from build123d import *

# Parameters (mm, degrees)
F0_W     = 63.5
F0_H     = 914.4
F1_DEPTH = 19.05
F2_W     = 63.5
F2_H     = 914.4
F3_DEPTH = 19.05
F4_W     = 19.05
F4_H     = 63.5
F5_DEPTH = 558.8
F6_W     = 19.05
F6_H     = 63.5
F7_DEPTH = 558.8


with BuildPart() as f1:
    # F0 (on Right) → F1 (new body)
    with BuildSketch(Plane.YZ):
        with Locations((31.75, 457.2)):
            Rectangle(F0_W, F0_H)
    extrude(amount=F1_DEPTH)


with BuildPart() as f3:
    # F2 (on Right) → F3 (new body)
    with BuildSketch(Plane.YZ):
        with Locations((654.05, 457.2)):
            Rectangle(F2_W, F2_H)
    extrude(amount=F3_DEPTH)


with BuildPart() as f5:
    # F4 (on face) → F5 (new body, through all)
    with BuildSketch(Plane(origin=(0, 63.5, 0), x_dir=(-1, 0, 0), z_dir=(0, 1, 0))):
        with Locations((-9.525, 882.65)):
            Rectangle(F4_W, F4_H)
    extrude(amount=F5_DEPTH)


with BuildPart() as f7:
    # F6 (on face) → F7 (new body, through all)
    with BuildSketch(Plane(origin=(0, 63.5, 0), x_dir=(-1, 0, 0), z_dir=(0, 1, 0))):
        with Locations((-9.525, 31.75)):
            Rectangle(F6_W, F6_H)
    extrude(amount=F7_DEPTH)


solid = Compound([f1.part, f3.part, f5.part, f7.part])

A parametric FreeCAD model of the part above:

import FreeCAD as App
import Part
import Sketcher
Q = App.Units.Quantity

doc = App.newDocument("Part")
body = doc.addObject("PartDesign::Body", "Body")

# Sketch on YZ plane
sketch1 = body.newObject("Sketcher::SketchObject", "Sketch")
sketch1.AttachmentSupport = (doc.getObject("YZ_Plane"), [""])
sketch1.MapMode = "FlatFace"
sketch1.addGeometry(Part.LineSegment(App.Vector(0, 914, 0), App.Vector(0, 0, 0)), False)
sketch1.addGeometry(Part.LineSegment(App.Vector(0, 0, 0), App.Vector(64, 0, 0)), False)
sketch1.addGeometry(Part.LineSegment(App.Vector(64, 0, 0), App.Vector(64, 914, 0)), False)
sketch1.addGeometry(Part.LineSegment(App.Vector(64, 914, 0), App.Vector(0, 914, 0)), False)
sketch1.addConstraint(Sketcher.Constraint("Coincident", 0, 2, 1, 1))
sketch1.addConstraint(Sketcher.Constraint("Coincident", 1, 2, 2, 1))
sketch1.addConstraint(Sketcher.Constraint("Coincident", 2, 2, 3, 1))
sketch1.addConstraint(Sketcher.Constraint("Coincident", 3, 2, 0, 1))
sketch1.addConstraint(Sketcher.Constraint("Vertical", 0))
sketch1.addConstraint(Sketcher.Constraint("Horizontal", 1))
sketch1.addConstraint(Sketcher.Constraint("Vertical", 2))
sketch1.addConstraint(Sketcher.Constraint("Horizontal", 3))
sketch1.addConstraint(Sketcher.Constraint("Coincident", 0, 2, -1, 1))
sketch1.addConstraint(Sketcher.Constraint("DistanceY", 0, 2, 0, 1, Q("36 in")))
sketch1.addConstraint(Sketcher.Constraint("DistanceX", 1, 1, 1, 2, Q("2.5 in")))
pad1 = body.newObject("PartDesign::Pad", "Pad")
pad1.Profile = sketch1
pad1.Length = Q("0.75 in")
body2 = doc.addObject("PartDesign::Body", "Body001")

# Sketch on YZ plane
sketch2 = body2.newObject("Sketcher::SketchObject", "Sketch001")
sketch2.AttachmentSupport = (doc.getObject("YZ_Plane001"), [""])
sketch2.MapMode = "FlatFace"
sketch2.addGeometry(Part.LineSegment(App.Vector(622, 914, 0), App.Vector(622, 0, 0)), False)
sketch2.addGeometry(Part.LineSegment(App.Vector(622, 0, 0), App.Vector(686, 0, 0)), False)
sketch2.addGeometry(Part.LineSegment(App.Vector(686, 0, 0), App.Vector(686, 914, 0)), False)
sketch2.addGeometry(Part.LineSegment(App.Vector(686, 914, 0), App.Vector(622, 914, 0)), False)
sketch2.addConstraint(Sketcher.Constraint("Coincident", 0, 2, 1, 1))
sketch2.addConstraint(Sketcher.Constraint("Coincident", 1, 2, 2, 1))
sketch2.addConstraint(Sketcher.Constraint("Coincident", 2, 2, 3, 1))
sketch2.addConstraint(Sketcher.Constraint("Coincident", 3, 2, 0, 1))
sketch2.addConstraint(Sketcher.Constraint("Vertical", 0))
sketch2.addConstraint(Sketcher.Constraint("Horizontal", 1))
sketch2.addConstraint(Sketcher.Constraint("Vertical", 2))
sketch2.addConstraint(Sketcher.Constraint("Horizontal", 3))
sketch2.addConstraint(Sketcher.Constraint("PointOnObject", 0, 2, -1))
sketch2.addConstraint(Sketcher.Constraint("DistanceY", 0, 2, 0, 1, Q("36 in")))
sketch2.addConstraint(Sketcher.Constraint("DistanceX", 1, 1, 1, 2, Q("2.5 in")))
sketch2.addConstraint(Sketcher.Constraint("DistanceX", -1, 1, 1, 2, Q("27 in")))
pad2 = body2.newObject("PartDesign::Pad", "Pad001")
pad2.Profile = sketch2
pad2.Length = Q("0.75 in")
body3 = doc.addObject("PartDesign::Body", "Body002")

# Sketch on XZ plane
sketch3 = body3.newObject("Sketcher::SketchObject", "Sketch002")
sketch3.AttachmentSupport = (doc.getObject("XZ_Plane002"), [""])
sketch3.MapMode = "FlatFace"
sketch3.AttachmentOffset = App.Placement(App.Vector(0, 0, -2.5 * 25.4), App.Rotation())
sketch3.addGeometry(Part.LineSegment(App.Vector(19, 914, 0), App.Vector(19, 851, 0)), False)
sketch3.addGeometry(Part.LineSegment(App.Vector(19, 851, 0), App.Vector(0, 851, 0)), False)
sketch3.addGeometry(Part.LineSegment(App.Vector(0, 851, 0), App.Vector(0, 914, 0)), False)
sketch3.addGeometry(Part.LineSegment(App.Vector(0, 914, 0), App.Vector(19, 914, 0)), False)
sketch3.addConstraint(Sketcher.Constraint("Coincident", 0, 2, 1, 1))
sketch3.addConstraint(Sketcher.Constraint("Coincident", 1, 2, 2, 1))
sketch3.addConstraint(Sketcher.Constraint("Coincident", 2, 2, 3, 1))
sketch3.addConstraint(Sketcher.Constraint("Coincident", 3, 2, 0, 1))
sketch3.addConstraint(Sketcher.Constraint("Vertical", 0))
sketch3.addConstraint(Sketcher.Constraint("Horizontal", 1))
sketch3.addConstraint(Sketcher.Constraint("Vertical", 2))
sketch3.addConstraint(Sketcher.Constraint("Horizontal", 3))
sketch3.addConstraint(Sketcher.Constraint("PointOnObject", 1, 2, -2))
sketch3.addConstraint(Sketcher.Constraint("DistanceY", 0, 2, 0, 1, Q("2.5 in")))
sketch3.addConstraint(Sketcher.Constraint("DistanceY", -1, 1, 2, 2, Q("36 in")))
sketch3.addConstraint(Sketcher.Constraint("DistanceX", 1, 2, 1, 1, Q("0.75 in")))
pad3 = body3.newObject("PartDesign::Pad", "Pad002")
pad3.Profile = sketch3
pad3.Length = Q("22 in")
pad3.Reversed = True
body4 = doc.addObject("PartDesign::Body", "Body003")

# Sketch on XZ plane
sketch4 = body4.newObject("Sketcher::SketchObject", "Sketch003")
sketch4.AttachmentSupport = (doc.getObject("XZ_Plane003"), [""])
sketch4.MapMode = "FlatFace"
sketch4.AttachmentOffset = App.Placement(App.Vector(0, 0, -2.5 * 25.4), App.Rotation())
sketch4.addGeometry(Part.LineSegment(App.Vector(19, 64, 0), App.Vector(19, 0, 0)), False)
sketch4.addGeometry(Part.LineSegment(App.Vector(19, 0, 0), App.Vector(0, 0, 0)), False)
sketch4.addGeometry(Part.LineSegment(App.Vector(0, 0, 0), App.Vector(0, 64, 0)), False)
sketch4.addGeometry(Part.LineSegment(App.Vector(0, 64, 0), App.Vector(19, 64, 0)), False)
sketch4.addConstraint(Sketcher.Constraint("Coincident", 0, 2, 1, 1))
sketch4.addConstraint(Sketcher.Constraint("Coincident", 1, 2, 2, 1))
sketch4.addConstraint(Sketcher.Constraint("Coincident", 2, 2, 3, 1))
sketch4.addConstraint(Sketcher.Constraint("Coincident", 3, 2, 0, 1))
sketch4.addConstraint(Sketcher.Constraint("Vertical", 0))
sketch4.addConstraint(Sketcher.Constraint("Horizontal", 1))
sketch4.addConstraint(Sketcher.Constraint("Vertical", 2))
sketch4.addConstraint(Sketcher.Constraint("Horizontal", 3))
sketch4.addConstraint(Sketcher.Constraint("Coincident", 1, 2, -1, 1))
sketch4.addConstraint(Sketcher.Constraint("DistanceY", 0, 2, 0, 1, Q("2.5 in")))
sketch4.addConstraint(Sketcher.Constraint("DistanceX", 1, 2, 1, 1, Q("0.75 in")))
pad4 = body4.newObject("PartDesign::Pad", "Pad003")
pad4.Profile = sketch4
pad4.Length = Q("22 in")
pad4.Reversed = True

doc.recompute()
